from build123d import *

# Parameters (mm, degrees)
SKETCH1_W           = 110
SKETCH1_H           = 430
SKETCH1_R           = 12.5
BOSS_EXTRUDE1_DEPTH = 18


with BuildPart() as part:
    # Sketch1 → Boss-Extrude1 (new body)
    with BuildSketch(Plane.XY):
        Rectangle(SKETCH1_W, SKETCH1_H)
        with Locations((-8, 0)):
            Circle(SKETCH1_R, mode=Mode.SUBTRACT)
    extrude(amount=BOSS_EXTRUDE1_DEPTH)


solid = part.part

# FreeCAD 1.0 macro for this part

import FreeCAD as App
import Part
import Sketcher

V = App.Vector
Q = App.Units.Quantity

doc = App.newDocument("Part")
params = doc.addObject("Spreadsheet::Sheet", "Params")
for row, (alias, value) in enumerate([
    ("sketch1_diameter", "25 mm"),
    ("sketch1_width", "110 mm"),
    ("sketch1_height", "430 mm"),
    ("pad1_length", "18 mm"),
], start=1):
    params.set(f"A{row}", alias)
    params.set(f"B{row}", "=" + value)
    params.setAlias(f"B{row}", alias)

body = doc.addObject("PartDesign::Body", "Body")

# Sketch on XY plane
sketch1 = body.newObject("Sketcher::SketchObject", "Sketch")
sketch1.AttachmentSupport = (doc.getObject("XY_Plane"), [""])
sketch1.MapMode = "FlatFace"
sketch1.addGeometry([
    Part.LineSegment(V(-55, 215, 0), V(-55, -215, 0)),  # 0
    Part.LineSegment(V(-55, -215, 0), V(55, -215, 0)),  # 1
    Part.LineSegment(V(55, -215, 0), V(55, 215, 0)),  # 2
    Part.LineSegment(V(55, 215, 0), V(-55, 215, 0)),  # 3
    Part.Circle(V(-8, 0, 0), V(0, 0, 1), 12),  # 4
], False)
sketch1.addConstraint([
    Sketcher.Constraint("Coincident", 0, 2, 1, 1),
    Sketcher.Constraint("Coincident", 1, 2, 2, 1),
    Sketcher.Constraint("Coincident", 2, 2, 3, 1),
    Sketcher.Constraint("Coincident", 3, 2, 0, 1),
    Sketcher.Constraint("Vertical", 0),
    Sketcher.Constraint("Horizontal", 1),
    Sketcher.Constraint("Vertical", 2),
    Sketcher.Constraint("Horizontal", 3),
    Sketcher.Constraint("Symmetric", 0, 2, 2, 2, -1, 1),
    Sketcher.Constraint("PointOnObject", 4, 3, -1),
    Sketcher.Constraint("Diameter", 4, Q("25 mm")),
    Sketcher.Constraint("DistanceX", 1, 1, 1, 2, Q("110 mm")),
    Sketcher.Constraint("DistanceY", 0, 2, 0, 1, Q("430 mm")),
    Sketcher.Constraint("DistanceX", 4, 3, -1, 1, Q("8 mm")),
])
sketch1.setExpression("Constraints[10]", "Params.sketch1_diameter")
sketch1.setExpression("Constraints[11]", "Params.sketch1_width")
sketch1.setExpression("Constraints[12]", "Params.sketch1_height")
pad1 = body.newObject("PartDesign::Pad", "Pad")
pad1.Profile = sketch1
pad1.setExpression("Length", "Params.pad1_length")

doc.recompute()
